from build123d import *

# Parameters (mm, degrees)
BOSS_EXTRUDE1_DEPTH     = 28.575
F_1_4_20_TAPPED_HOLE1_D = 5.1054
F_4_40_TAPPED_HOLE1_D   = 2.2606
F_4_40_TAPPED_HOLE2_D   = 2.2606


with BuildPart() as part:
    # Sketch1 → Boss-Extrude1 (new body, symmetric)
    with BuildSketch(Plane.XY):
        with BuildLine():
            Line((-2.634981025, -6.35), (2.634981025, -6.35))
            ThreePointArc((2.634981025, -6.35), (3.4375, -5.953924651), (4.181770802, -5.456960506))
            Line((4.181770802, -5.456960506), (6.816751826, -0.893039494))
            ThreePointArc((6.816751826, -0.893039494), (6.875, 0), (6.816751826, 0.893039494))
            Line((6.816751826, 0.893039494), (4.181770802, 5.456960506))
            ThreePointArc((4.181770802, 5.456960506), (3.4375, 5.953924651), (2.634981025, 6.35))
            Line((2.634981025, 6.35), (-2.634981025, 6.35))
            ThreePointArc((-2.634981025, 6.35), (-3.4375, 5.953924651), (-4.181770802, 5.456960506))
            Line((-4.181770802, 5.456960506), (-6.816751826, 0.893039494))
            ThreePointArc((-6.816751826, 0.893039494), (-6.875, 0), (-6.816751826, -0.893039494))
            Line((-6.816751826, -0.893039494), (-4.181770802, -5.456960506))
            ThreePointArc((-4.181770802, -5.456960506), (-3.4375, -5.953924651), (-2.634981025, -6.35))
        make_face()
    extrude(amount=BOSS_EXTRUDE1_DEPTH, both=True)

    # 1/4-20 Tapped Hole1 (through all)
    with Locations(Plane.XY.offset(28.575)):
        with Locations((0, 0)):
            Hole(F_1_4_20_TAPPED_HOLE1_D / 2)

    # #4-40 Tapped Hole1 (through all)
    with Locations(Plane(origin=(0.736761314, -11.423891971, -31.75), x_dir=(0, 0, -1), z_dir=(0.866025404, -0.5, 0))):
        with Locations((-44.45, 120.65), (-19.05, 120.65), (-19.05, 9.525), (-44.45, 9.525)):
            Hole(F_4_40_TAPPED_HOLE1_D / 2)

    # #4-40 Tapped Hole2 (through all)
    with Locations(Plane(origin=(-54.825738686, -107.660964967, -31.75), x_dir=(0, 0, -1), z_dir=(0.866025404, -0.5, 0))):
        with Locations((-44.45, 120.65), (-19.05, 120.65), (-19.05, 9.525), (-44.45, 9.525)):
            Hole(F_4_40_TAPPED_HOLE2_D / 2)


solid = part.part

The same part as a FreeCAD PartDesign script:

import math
import FreeCAD as App
import Part
import Sketcher
from FreeCAD import Vector
Q = App.Units.Quantity

doc = App.newDocument("Part")
params = doc.addObject("Spreadsheet::Sheet", "Params")
for row, (alias, value) in enumerate([
    ("pad1_length", "2.25 in"),
    ("sketch2_diameter", "0.201 in"),
    ("hole_diameter", "0.201 in"),
    ("sketch3_diameter", "0.089 in"),
    ("hole2_diameter", "0.089 in"),
    ("sketch4_diameter", "0.089 in"),
    ("hole3_diameter", "0.089 in"),
], start=1):
    params.set(f"A{row}", alias)
    params.set(f"B{row}", "=" + value)
    params.setAlias(f"B{row}", alias)

body = doc.addObject("PartDesign::Body", "Body")

sketch1 = body.newObject("Sketcher::SketchObject", "Sketch")
sketch1.AttachmentSupport = (doc.getObject("XY_Plane"), [""])
sketch1.MapMode = "FlatFace"
sketch1.addGeometry(Part.LineSegment(Vector(-2.6, -6.3, 0), Vector(2.6, -6.3, 0)), False)
sketch1.addGeometry(Part.ArcOfCircle(Part.Circle(Vector(0, 0, 0), Vector(0, 0, 1), 6.9), math.radians(-67.46), math.radians(-52.54)), False)
sketch1.addGeometry(Part.LineSegment(Vector(4.2, -5.5, 0), Vector(6.8, -0.9, 0)), False)
sketch1.addGeometry(Part.ArcOfCircle(Part.Circle(Vector(0, 0, 0), Vector(0, 0, 1), 6.9), math.radians(-7.46), math.radians(7.46)), False)
sketch1.addGeometry(Part.LineSegment(Vector(6.8, 0.9, 0), Vector(4.2, 5.5, 0)), False)
sketch1.addGeometry(Part.ArcOfCircle(Part.Circle(Vector(0, 0, 0), Vector(0, 0, 1), 6.9), math.radians(52.54), math.radians(67.46)), False)
sketch1.addGeometry(Part.LineSegment(Vector(2.6, 6.3, 0), Vector(-2.6, 6.3, 0)), False)
sketch1.addGeometry(Part.ArcOfCircle(Part.Circle(Vector(0, 0, 0), Vector(0, 0, 1), 6.9), math.radians(112.54), math.radians(127.46)), False)
sketch1.addGeometry(Part.LineSegment(Vector(-4.2, 5.5, 0), Vector(-6.8, 0.9, 0)), False)
sketch1.addGeometry(Part.ArcOfCircle(Part.Circle(Vector(0, 0, 0), Vector(0, 0, 1), 6.9), math.radians(172.54), math.radians(187.46)), False)
sketch1.addGeometry(Part.LineSegment(Vector(-6.8, -0.9, 0), Vector(-4.2, -5.5, 0)), False)
sketch1.addGeometry(Part.ArcOfCircle(Part.Circle(Vector(0, 0, 0), Vector(0, 0, 1), 6.9), math.radians(-127.46), math.radians(-112.54)), False)
sketch1.addConstraint(Sketcher.Constraint("Coincident", 0, 2, 1, 1))
sketch1.addConstraint(Sketcher.Constraint("Coincident", 1, 2, 2, 1))
sketch1.addConstraint(Sketcher.Constraint("Coincident", 2, 2, 3, 1))
sketch1.addConstraint(Sketcher.Constraint("Coincident", 3, 2, 4, 1))
sketch1.addConstraint(Sketcher.Constraint("Coincident", 4, 2, 5, 1))
sketch1.addConstraint(Sketcher.Constraint("Coincident", 5, 2, 6, 1))
sketch1.addConstraint(Sketcher.Constraint("Coincident", 6, 2, 7, 1))
sketch1.addConstraint(Sketcher.Constraint("Coincident", 7, 2, 8, 1))
sketch1.addConstraint(Sketcher.Constraint("Coincident", 8, 2, 9, 1))
sketch1.addConstraint(Sketcher.Constraint("Coincident", 9, 2, 10, 1))
sketch1.addConstraint(Sketcher.Constraint("Coincident", 10, 2, 11, 1))
sketch1.addConstraint(Sketcher.Constraint("Coincident", 11, 2, 0, 1))
sketch1.addConstraint(Sketcher.Constraint("Horizontal", 0))
sketch1.addConstraint(Sketcher.Constraint("Horizontal", 6))
sketch1.addConstraint(Sketcher.Constraint("Coincident", 1, 3, -1, 1))
sketch1.addConstraint(Sketcher.Constraint("Coincident", 3, 3, -1, 1))
sketch1.addConstraint(Sketcher.Constraint("Coincident", 5, 3, -1, 1))
sketch1.addConstraint(Sketcher.Constraint("Coincident", 7, 3, -1, 1))
sketch1.addConstraint(Sketcher.Constraint("Coincident", 9, 3, -1, 1))
sketch1.addConstraint(Sketcher.Constraint("Coincident", 11, 3, -1, 1))
sketch1.addConstraint(Sketcher.Constraint("Equal", 1, 3))
sketch1.addConstraint(Sketcher.Constraint("Equal", 3, 5))
sketch1.addConstraint(Sketcher.Constraint("Equal", 5, 7))
sketch1.addConstraint(Sketcher.Constraint("Equal", 7, 9))
sketch1.addConstraint(Sketcher.Constraint("Equal", 9, 11))
sketch1.addConstraint(Sketcher.Constraint("Parallel", 2, 8))
sketch1.addConstraint(Sketcher.Constraint("Parallel", 4, 10))
sketch1.addConstraint(Sketcher.Constraint("Horizontal", 4, 2, 7, 2))
sketch1.addConstraint(Sketcher.Constraint("Horizontal", 3, 2, 8, 2))
sketch1.addConstraint(Sketcher.Constraint("Horizontal", 2, 2, 9, 2))
sketch1.addConstraint(Sketcher.Constraint("Vertical", 2, 2, 3, 2))
sketch1.addConstraint(Sketcher.Constraint("Vertical", 0, 2, 5, 2))
sketch1.addConstraint(Sketcher.Constraint("Angle", 2, Q("60 deg")))
sketch1.addConstraint(Sketcher.Constraint("DistanceY", 0, 2, -1, 1, Q("0.25 in")))
sketch1.addConstraint(Sketcher.Constraint("Radius", 1, 6.875))
sketch1.addConstraint(Sketcher.Constraint("DistanceY", 1, 2, 3, 2, Q("0.25 in")))
pad1 = body.newObject("PartDesign::Pad", "Pad")
pad1.Profile = sketch1
pad1.setExpression("Length", "Params.pad1_length")
pad1.Midplane = True

sketch2 = body.newObject("Sketcher::SketchObject", "Sketch001")
sketch2.AttachmentSupport = (doc.getObject("XY_Plane"), [""])
sketch2.MapMode = "FlatFace"
sketch2.AttachmentOffset = App.Placement(Vector(0, 0, 1.125 * 25.4), App.Rotation())
sketch2.addGeometry(Part.Circle(Vector(0, 0, 0), Vector(0, 0, 1), 2.6), False)
sketch2.addConstraint(Sketcher.Constraint("Coincident", 0, 3, -1, 1))
sketch2.addConstraint(Sketcher.Constraint("Diameter", 0, Q("0.201 in")))
sketch2.setExpression("Constraints[1]", "Params.sketch2_diameter")
doc.recompute()
hole = body.newObject("PartDesign::Hole", "Hole")
hole.Profile = sketch2
hole.ThreadType = "None"
hole.setExpression("Diameter", "Params.hole_diameter")
hole.DepthType = "ThroughAll"

sketch3 = body.newObject("Sketcher::SketchObject", "Sketch002")
sketch3.Placement = App.Placement(Vector(5.499261, -3.175, 0), App.Rotation(Vector(0, 0, -1), Vector(0.5, 0.866025404, 0), Vector(0.866025404, -0.5, 0), "ZXY"))
sketch3.addGeometry(Part.Circle(Vector(-12.7, 111.1, 0), Vector(0, 0, 1), 1.1), False)
sketch3.addGeometry(Part.Circle(Vector(12.7, 111.1, 0), Vector(0, 0, 1), 1.1), False)
sketch3.addGeometry(Part.Circle(Vector(12.7, 0, 0), Vector(0, 0, 1), 1.1), False)
sketch3.addGeometry(Part.Circle(Vector(-12.7, 0, 0), Vector(0, 0, 1), 1.1), False)
sketch3.addConstraint(Sketcher.Constraint("Equal", 0, 1))
sketch3.addConstraint(Sketcher.Constraint("Equal", 1, 2))
sketch3.addConstraint(Sketcher.Constraint("Equal", 2, 3))
sketch3.addConstraint(Sketcher.Constraint("Symmetric", 2, 3, 3, 3, -1, 1))
sketch3.addConstraint(Sketcher.Constraint("Symmetric", 0, 3, 1, 3, -2))
sketch3.addConstraint(Sketcher.Constraint("PointOnObject", 2, 3, -1))
sketch3.addConstraint(Sketcher.Constraint("Vertical", 1, 3, 2, 3))
sketch3.addConstraint(Sketcher.Constraint("Diameter", 0, Q("0.089 in")))
sketch3.addConstraint(Sketcher.Constraint("DistanceX", 0, 3, 1, 3, Q("1 in")))
sketch3.addConstraint(Sketcher.Constraint("DistanceY", -1, 1, 0, 3, Q("4.375 in")))
sketch3.setExpression("Constraints[7]", "Params.sketch3_diameter")
doc.recompute()
hole2 = body.newObject("PartDesign::Hole", "Hole001")
hole2.Profile = sketch3
hole2.ThreadType = "None"
hole2.setExpression("Diameter", "Params.hole2_diameter")
hole2.DepthType = "ThroughAll"

sketch4 = body.newObject("Sketcher::SketchObject", "Sketch003")
sketch4.Placement = App.Placement(Vector(5.499261, -3.175, 0), App.Rotation(Vector(0, 0, -1), Vector(0.5, 0.866025404, 0), Vector(0.866025404, -0.5, 0), "ZXY"))
sketch4.addGeometry(Part.Circle(Vector(-12.7, 0, 0), Vector(0, 0, 1), 1.1), False)
sketch4.addGeometry(Part.Circle(Vector(12.7, 0, 0), Vector(0, 0, 1), 1.1), False)
sketch4.addGeometry(Part.Circle(Vector(12.7, -111.1, 0), Vector(0, 0, 1), 1.1), False)
sketch4.addGeometry(Part.Circle(Vector(-12.7, -111.1, 0), Vector(0, 0, 1), 1.1), False)
sketch4.addConstraint(Sketcher.Constraint("Equal", 0, 1))
sketch4.addConstraint(Sketcher.Constraint("Equal", 1, 2))
sketch4.addConstraint(Sketcher.Constraint("Equal", 2, 3))
sketch4.addConstraint(Sketcher.Constraint("Symmetric", 0, 3, 1, 3, -1, 1))
sketch4.addConstraint(Sketcher.Constraint("Symmetric", 2, 3, 3, 3, -2))
sketch4.addConstraint(Sketcher.Constraint("PointOnObject", 0, 3, -1))
sketch4.addConstraint(Sketcher.Constraint("Vertical", 1, 3, 2, 3))
sketch4.addConstraint(Sketcher.Constraint("Diameter", 0, Q("0.089 in")))
sketch4.addConstraint(Sketcher.Constraint("DistanceX", 0, 3, 1, 3, Q("1 in")))
sketch4.addConstraint(Sketcher.Constraint("DistanceY", 2, 3, -1, 1, Q("4.375 in")))
sketch4.setExpression("Constraints[7]", "Params.sketch4_diameter")
doc.recompute()
hole3 = body.newObject("PartDesign::Hole", "Hole002")
hole3.Profile = sketch4
hole3.ThreadType = "None"
hole3.setExpression("Diameter", "Params.hole3_diameter")
hole3.DepthType = "ThroughAll"

doc.recompute()
